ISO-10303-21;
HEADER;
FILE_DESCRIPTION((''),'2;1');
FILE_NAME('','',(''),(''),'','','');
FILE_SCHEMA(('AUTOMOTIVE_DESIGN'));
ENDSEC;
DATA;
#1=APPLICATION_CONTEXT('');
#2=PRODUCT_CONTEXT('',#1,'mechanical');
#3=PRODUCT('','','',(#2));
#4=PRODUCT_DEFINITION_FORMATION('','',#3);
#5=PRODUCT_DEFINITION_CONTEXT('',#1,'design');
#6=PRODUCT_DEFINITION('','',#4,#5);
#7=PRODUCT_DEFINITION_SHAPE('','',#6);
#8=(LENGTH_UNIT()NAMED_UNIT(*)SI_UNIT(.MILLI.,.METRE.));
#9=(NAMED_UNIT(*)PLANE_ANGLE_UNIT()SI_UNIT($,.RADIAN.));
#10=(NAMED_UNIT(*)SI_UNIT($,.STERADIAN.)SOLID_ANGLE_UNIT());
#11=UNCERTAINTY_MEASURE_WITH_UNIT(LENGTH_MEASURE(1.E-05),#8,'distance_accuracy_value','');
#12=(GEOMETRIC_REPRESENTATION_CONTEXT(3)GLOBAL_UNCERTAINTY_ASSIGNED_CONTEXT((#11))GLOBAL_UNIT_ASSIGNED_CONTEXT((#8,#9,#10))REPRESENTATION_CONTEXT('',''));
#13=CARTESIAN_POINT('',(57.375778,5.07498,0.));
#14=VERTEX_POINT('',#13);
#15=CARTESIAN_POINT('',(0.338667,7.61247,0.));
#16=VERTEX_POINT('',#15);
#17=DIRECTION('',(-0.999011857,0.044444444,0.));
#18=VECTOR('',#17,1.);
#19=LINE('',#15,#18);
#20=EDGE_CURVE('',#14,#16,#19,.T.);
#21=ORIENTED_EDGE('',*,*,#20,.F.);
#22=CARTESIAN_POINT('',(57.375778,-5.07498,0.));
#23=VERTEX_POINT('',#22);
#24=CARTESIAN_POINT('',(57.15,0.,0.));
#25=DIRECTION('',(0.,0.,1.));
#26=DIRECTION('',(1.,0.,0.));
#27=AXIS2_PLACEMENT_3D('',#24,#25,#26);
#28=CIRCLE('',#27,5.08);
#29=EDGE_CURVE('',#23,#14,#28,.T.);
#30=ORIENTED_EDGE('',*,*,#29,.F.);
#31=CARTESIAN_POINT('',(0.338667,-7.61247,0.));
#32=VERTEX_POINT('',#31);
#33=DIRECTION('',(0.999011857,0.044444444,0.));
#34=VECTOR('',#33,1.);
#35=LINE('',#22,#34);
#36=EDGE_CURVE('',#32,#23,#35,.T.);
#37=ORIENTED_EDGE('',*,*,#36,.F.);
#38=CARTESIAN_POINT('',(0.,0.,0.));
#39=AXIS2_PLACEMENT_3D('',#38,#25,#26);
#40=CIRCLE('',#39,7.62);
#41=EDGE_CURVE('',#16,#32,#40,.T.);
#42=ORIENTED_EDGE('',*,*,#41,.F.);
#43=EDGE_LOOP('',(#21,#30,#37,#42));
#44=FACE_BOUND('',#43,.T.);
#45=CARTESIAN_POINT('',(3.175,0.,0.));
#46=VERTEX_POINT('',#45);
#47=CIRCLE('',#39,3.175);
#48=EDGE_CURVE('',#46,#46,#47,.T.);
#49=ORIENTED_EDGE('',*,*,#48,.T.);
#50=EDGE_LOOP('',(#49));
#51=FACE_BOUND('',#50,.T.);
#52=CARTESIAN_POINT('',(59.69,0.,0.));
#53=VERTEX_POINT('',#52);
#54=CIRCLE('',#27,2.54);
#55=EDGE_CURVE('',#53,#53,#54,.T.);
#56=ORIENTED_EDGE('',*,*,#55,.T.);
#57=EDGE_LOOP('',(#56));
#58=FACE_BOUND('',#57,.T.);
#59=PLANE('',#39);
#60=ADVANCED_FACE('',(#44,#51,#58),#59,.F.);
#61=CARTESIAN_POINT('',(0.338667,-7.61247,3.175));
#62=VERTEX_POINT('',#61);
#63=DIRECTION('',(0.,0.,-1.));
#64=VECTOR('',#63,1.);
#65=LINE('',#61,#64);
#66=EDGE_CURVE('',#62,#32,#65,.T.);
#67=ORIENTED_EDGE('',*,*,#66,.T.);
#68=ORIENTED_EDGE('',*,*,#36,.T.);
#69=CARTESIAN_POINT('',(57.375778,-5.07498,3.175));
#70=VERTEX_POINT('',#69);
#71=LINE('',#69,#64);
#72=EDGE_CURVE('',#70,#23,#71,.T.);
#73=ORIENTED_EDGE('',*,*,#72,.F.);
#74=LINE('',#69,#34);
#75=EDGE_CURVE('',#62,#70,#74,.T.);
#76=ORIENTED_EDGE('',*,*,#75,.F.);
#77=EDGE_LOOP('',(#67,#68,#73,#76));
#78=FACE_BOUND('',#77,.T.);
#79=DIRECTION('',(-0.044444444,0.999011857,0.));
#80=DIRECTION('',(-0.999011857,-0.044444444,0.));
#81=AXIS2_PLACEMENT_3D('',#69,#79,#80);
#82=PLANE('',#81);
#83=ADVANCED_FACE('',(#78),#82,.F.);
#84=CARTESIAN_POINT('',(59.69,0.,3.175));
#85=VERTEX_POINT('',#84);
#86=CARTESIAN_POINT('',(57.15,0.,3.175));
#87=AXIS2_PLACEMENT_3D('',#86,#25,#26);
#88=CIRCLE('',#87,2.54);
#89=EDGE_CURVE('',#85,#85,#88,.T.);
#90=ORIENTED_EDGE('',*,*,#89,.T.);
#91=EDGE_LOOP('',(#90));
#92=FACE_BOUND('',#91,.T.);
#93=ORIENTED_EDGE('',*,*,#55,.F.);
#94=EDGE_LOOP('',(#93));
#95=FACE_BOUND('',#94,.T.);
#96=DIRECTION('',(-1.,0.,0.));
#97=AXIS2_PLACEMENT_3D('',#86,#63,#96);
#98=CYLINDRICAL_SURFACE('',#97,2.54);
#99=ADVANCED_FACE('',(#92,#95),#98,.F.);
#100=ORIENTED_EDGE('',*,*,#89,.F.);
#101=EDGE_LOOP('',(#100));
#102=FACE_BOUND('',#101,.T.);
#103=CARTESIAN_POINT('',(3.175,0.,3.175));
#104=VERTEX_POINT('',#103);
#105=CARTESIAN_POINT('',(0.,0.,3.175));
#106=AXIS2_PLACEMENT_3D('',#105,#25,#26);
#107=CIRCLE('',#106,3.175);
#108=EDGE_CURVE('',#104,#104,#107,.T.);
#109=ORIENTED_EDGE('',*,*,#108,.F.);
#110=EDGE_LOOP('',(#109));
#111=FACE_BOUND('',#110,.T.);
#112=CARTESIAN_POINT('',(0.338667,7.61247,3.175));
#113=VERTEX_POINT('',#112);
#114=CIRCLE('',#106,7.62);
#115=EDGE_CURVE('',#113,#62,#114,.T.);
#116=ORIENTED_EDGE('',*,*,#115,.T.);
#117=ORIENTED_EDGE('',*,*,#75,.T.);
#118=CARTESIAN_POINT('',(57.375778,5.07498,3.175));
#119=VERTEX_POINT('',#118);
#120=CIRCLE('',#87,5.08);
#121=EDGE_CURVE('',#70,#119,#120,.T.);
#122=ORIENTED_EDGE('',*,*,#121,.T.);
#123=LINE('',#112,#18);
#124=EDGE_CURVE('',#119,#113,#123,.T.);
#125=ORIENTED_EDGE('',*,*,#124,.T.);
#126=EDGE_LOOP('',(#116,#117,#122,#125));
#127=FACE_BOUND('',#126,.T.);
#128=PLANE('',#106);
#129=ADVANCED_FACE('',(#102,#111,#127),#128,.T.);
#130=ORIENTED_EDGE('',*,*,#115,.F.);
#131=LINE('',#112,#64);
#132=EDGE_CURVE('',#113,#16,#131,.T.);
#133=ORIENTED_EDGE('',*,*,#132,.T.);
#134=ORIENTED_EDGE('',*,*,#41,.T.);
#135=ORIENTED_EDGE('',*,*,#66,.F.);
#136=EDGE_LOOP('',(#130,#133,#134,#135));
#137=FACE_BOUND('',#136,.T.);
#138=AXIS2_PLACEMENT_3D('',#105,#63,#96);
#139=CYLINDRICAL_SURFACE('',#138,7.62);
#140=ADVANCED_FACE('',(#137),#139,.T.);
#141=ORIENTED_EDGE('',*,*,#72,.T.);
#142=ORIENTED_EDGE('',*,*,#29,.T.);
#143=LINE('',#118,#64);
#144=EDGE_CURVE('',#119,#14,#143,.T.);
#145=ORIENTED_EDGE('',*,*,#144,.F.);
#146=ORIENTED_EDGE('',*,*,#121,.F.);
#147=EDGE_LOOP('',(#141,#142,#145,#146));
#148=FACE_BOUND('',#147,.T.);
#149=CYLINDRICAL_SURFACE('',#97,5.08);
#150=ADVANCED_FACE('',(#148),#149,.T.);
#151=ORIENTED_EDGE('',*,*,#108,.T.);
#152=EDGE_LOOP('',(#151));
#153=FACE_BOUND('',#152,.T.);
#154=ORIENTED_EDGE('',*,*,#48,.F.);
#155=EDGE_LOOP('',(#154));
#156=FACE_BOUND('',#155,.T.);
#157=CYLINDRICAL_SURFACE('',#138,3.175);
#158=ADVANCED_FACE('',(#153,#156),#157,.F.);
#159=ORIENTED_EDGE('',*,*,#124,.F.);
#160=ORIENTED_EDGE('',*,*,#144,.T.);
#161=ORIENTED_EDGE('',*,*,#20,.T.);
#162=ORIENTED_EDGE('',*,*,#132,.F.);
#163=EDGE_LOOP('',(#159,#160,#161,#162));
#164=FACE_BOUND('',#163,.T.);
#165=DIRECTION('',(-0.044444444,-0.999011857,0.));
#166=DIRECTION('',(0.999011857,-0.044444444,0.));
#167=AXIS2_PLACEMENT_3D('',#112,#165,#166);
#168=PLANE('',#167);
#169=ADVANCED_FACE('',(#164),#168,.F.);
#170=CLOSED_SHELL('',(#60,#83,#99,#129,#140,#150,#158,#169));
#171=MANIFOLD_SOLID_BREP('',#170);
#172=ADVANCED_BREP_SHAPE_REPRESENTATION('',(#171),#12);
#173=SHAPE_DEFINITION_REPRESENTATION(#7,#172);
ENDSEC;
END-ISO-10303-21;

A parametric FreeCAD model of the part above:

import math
import FreeCAD as App
import Part
import Sketcher

V = App.Vector
Q = App.Units.Quantity

doc = App.newDocument("Part")
body = doc.addObject("PartDesign::Body", "Body")

# Sketch on XY plane
sketch1 = doc.addObject("Sketcher::SketchObject", "Sketch")
body.addObject(sketch1)
sketch1.AttachmentSupport = (doc.XY_Plane, [""])
sketch1.MapMode = "FlatFace"
sketch1.addGeometry([
    Part.LineSegment(V(57.4, 5.1, 0), V(0.3, 7.6, 0)),  # 0
    Part.ArcOfCircle(Part.Circle(V(0, 0, 0), V(0, 0, 1), 7.6), math.radians(87), math.radians(273)),  # 1
    Part.LineSegment(V(0.3, -7.6, 0), V(57.4, -5.1, 0)),  # 2
    Part.ArcOfCircle(Part.Circle(V(57.1, 0, 0), V(0, 0, 1), 5.1), math.radians(-87), math.radians(87)),  # 3
    Part.Circle(V(57.1, 0, 0), V(0, 0, 1), 2.5),  # 4
    Part.Circle(V(0, 0, 0), V(0, 0, 1), 3.2),  # 5
], False)
sketch1.addConstraint([
    Sketcher.Constraint("Tangent", 0, 2, 1, 1),
    Sketcher.Constraint("Tangent", 1, 2, 2, 1),
    Sketcher.Constraint("Tangent", 2, 2, 3, 1),
    Sketcher.Constraint("Tangent", 3, 2, 0, 1),
    Sketcher.Constraint("Coincident", 1, 3, -1, 1),
    Sketcher.Constraint("Coincident", 5, 3, -1, 1),
    Sketcher.Constraint("Coincident", 4, 3, 3, 3),
    Sketcher.Constraint("PointOnObject", 3, 3, -1),
    Sketcher.Constraint("Diameter", 4, Q("0.2 in")),
    Sketcher.Constraint("Radius", 1, Q("0.3 in")),
    Sketcher.Constraint("Radius", 3, Q("0.2 in")),
    Sketcher.Constraint("Diameter", 5, Q("0.25 in")),
    Sketcher.Constraint("DistanceX", -1, 1, 3, 3, Q("2.25 in")),
])
pad1 = doc.addObject("PartDesign::Pad", "Pad")
body.addObject(pad1)
pad1.Profile = sketch1
pad1.Length = Q("0.125 in")

doc.recompute()
